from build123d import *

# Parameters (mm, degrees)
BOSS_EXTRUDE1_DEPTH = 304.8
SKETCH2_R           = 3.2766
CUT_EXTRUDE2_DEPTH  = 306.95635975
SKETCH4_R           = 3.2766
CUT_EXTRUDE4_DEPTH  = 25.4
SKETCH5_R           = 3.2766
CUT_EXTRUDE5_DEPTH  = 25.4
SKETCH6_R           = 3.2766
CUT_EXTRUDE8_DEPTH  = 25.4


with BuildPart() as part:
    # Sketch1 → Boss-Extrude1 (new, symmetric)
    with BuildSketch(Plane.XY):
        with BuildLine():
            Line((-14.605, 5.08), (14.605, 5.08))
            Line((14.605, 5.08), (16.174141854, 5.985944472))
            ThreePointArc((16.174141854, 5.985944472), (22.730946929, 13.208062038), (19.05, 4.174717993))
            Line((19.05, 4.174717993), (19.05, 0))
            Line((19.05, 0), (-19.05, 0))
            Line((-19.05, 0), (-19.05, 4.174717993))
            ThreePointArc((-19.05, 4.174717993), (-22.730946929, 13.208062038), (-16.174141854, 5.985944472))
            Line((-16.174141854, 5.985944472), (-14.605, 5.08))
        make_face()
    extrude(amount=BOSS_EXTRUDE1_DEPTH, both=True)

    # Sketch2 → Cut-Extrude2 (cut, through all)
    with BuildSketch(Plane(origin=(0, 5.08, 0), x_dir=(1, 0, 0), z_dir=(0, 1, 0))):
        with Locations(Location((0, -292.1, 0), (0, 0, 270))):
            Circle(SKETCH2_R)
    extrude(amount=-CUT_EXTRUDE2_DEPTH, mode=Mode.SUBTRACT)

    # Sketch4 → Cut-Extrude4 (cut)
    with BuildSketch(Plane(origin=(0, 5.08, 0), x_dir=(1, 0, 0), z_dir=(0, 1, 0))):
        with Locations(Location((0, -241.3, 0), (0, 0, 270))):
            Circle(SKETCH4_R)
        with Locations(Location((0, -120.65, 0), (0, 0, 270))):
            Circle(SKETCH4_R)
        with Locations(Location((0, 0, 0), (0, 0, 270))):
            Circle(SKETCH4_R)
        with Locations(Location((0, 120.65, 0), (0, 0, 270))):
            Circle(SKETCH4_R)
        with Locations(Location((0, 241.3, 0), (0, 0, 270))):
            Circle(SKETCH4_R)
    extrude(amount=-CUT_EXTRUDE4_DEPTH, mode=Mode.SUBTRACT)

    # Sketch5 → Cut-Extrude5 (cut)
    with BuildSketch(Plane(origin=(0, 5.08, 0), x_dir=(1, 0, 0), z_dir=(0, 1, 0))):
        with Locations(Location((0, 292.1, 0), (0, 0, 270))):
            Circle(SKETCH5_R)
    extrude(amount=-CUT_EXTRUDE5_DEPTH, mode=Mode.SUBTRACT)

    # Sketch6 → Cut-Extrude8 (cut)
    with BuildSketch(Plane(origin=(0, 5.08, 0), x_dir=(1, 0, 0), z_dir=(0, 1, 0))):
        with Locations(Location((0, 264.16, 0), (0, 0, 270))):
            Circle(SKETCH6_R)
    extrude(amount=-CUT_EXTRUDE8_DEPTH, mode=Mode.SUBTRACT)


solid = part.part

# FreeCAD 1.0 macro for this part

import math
import FreeCAD as App
import Part
import Sketcher
from FreeCAD import Vector
Q = App.Units.Quantity

doc = App.newDocument("Part")
body = doc.addObject("PartDesign::Body", "Body")

sketch1 = body.newObject("Sketcher::SketchObject", "Sketch")
sketch1.AttachmentSupport = (doc.getObject("XY_Plane"), [""])
sketch1.MapMode = "FlatFace"
sketch1.addGeometry(Part.LineSegment(Vector(14.6, 5.1, 0), Vector(-14.6, 5.1, 0)), False)
sketch1.addGeometry(Part.LineSegment(Vector(-14.6, 5.1, 0), Vector(-16.2, 6, 0)), False)
sketch1.addGeometry(Part.ArcOfCircle(Part.Circle(Vector(-20.1, 9, 0), Vector(0, 0, 1), 5), math.radians(-38), math.radians(282)), False)
sketch1.addGeometry(Part.LineSegment(Vector(-19.1, 4.2, 0), Vector(-19.1, 0, 0)), False)
sketch1.addGeometry(Part.LineSegment(Vector(-19.1, 0, 0), Vector(19.1, 0, 0)), False)
sketch1.addGeometry(Part.LineSegment(Vector(19.1, 0, 0), Vector(19.1, 4.2, 0)), False)
sketch1.addGeometry(Part.ArcOfCircle(Part.Circle(Vector(20.1, 9, 0), Vector(0, 0, 1), 5), math.radians(-102), math.radians(218)), False)
sketch1.addGeometry(Part.LineSegment(Vector(16.2, 6, 0), Vector(14.6, 5.1, 0)), False)
sketch1.addConstraint(Sketcher.Constraint("Coincident", 0, 2, 1, 1))
sketch1.addConstraint(Sketcher.Constraint("Coincident", 1, 2, 2, 1))
sketch1.addConstraint(Sketcher.Constraint("Coincident", 2, 2, 3, 1))
sketch1.addConstraint(Sketcher.Constraint("Coincident", 3, 2, 4, 1))
sketch1.addConstraint(Sketcher.Constraint("Coincident", 4, 2, 5, 1))
sketch1.addConstraint(Sketcher.Constraint("Coincident", 5, 2, 6, 1))
sketch1.addConstraint(Sketcher.Constraint("Coincident", 6, 2, 7, 1))
sketch1.addConstraint(Sketcher.Constraint("Coincident", 7, 2, 0, 1))
sketch1.addConstraint(Sketcher.Constraint("Horizontal", 0))
sketch1.addConstraint(Sketcher.Constraint("Vertical", 3))
sketch1.addConstraint(Sketcher.Constraint("Horizontal", 4))
sketch1.addConstraint(Sketcher.Constraint("Vertical", 5))
sketch1.addConstraint(Sketcher.Constraint("Equal", 2, 6))
sketch1.addConstraint(Sketcher.Constraint("Symmetric", 3, 2, 4, 2, -1, 1))
sketch1.addConstraint(Sketcher.Constraint("Symmetric", 2, 3, 6, 3, -2))
sketch1.addConstraint(Sketcher.Constraint("Horizontal", 1, 2, 6, 2))
sketch1.addConstraint(Sketcher.Constraint("Equal", 1, 7))
sketch1.addConstraint(Sketcher.Constraint("DistanceX", 4, 1, 4, 2, Q("1.5 in")))
sketch1.addConstraint(Sketcher.Constraint("Angle", 1, Q("150 deg")))
sketch1.addConstraint(Sketcher.Constraint("Radius", 2, Q("0.195 in")))
sketch1.addConstraint(Sketcher.Constraint("DistanceX", 0, 2, 0, 1, Q("1.15 in")))
sketch1.addConstraint(Sketcher.Constraint("DistanceY", -1, 1, 0, 2, Q("0.2 in")))
sketch1.addConstraint(Sketcher.Constraint("DistanceX", 2, 3, -1, 1, Q("0.791 in")))
sketch1.addConstraint(Sketcher.Constraint("DistanceY", -1, 1, 2, 3, Q("0.355 in")))
pad1 = body.newObject("PartDesign::Pad", "Pad")
pad1.Profile = sketch1
pad1.Length = Q("24 in")
pad1.Midplane = True

sketch2 = body.newObject("Sketcher::SketchObject", "Sketch001")
sketch2.AttachmentSupport = (doc.getObject("XZ_Plane"), [""])
sketch2.MapMode = "FlatFace"
sketch2.AttachmentOffset = App.Placement(Vector(0, 0, -0.2 * 25.4), App.Rotation())
sketch2.addGeometry(Part.Circle(Vector(0, 292.1, 0), Vector(0, 0, 1), 3.3), False)
sketch2.addConstraint(Sketcher.Constraint("PointOnObject", 0, 3, -2))
sketch2.addConstraint(Sketcher.Constraint("Diameter", 0, Q("0.258 in")))
sketch2.addConstraint(Sketcher.Constraint("DistanceY", -1, 1, 0, 3, Q("11.5 in")))
pocket1 = body.newObject("PartDesign::Pocket", "Pocket")
pocket1.Profile = sketch2
pocket1.Type = "ThroughAll"
pocket1.Reversed = True

sketch3 = body.newObject("Sketcher::SketchObject", "Sketch002")
sketch3.AttachmentSupport = (doc.getObject("XZ_Plane"), [""])
sketch3.MapMode = "FlatFace"
sketch3.AttachmentOffset = App.Placement(Vector(0, 0, -0.2 * 25.4), App.Rotation())
sketch3.addGeometry(Part.Circle(Vector(0, 241.3, 0), Vector(0, 0, 1), 3.3), False)
sketch3.addGeometry(Part.Circle(Vector(0, 120.7, 0), Vector(0, 0, 1), 3.3), False)
sketch3.addGeometry(Part.Circle(Vector(0, 0, 0), Vector(0, 0, 1), 3.3), False)
sketch3.addGeometry(Part.Circle(Vector(0, -120.7, 0), Vector(0, 0, 1), 3.3), False)
sketch3.addGeometry(Part.Circle(Vector(0, -241.3, 0), Vector(0, 0, 1), 3.3), False)
sketch3.addConstraint(Sketcher.Constraint("Coincident", 2, 3, -1, 1))
sketch3.addConstraint(Sketcher.Constraint("Equal", 0, 1))
sketch3.addConstraint(Sketcher.Constraint("Equal", 1, 2))
sketch3.addConstraint(Sketcher.Constraint("Equal", 2, 3))
sketch3.addConstraint(Sketcher.Constraint("Equal", 3, 4))
sketch3.addConstraint(Sketcher.Constraint("Symmetric", 1, 3, 3, 3, -1, 1))
sketch3.addConstraint(Sketcher.Constraint("Symmetric", 0, 3, 4, 3, -1, 1))
sketch3.addConstraint(Sketcher.Constraint("PointOnObject", 0, 3, -2))
sketch3.addConstraint(Sketcher.Constraint("PointOnObject", 1, 3, -2))
sketch3.addConstraint(Sketcher.Constraint("Diameter", 0, Q("0.258 in")))
sketch3.addConstraint(Sketcher.Constraint("DistanceY", 4, 3, 0, 3, Q("19 in")))
sketch3.addConstraint(Sketcher.Constraint("DistanceY", 3, 3, 1, 3, Q("9.5 in")))
pocket2 = body.newObject("PartDesign::Pocket", "Pocket001")
pocket2.Profile = sketch3
pocket2.Length = Q("1 in")
pocket2.Reversed = True

sketch4 = body.newObject("Sketcher::SketchObject", "Sketch003")
sketch4.AttachmentSupport = (doc.getObject("XZ_Plane"), [""])
sketch4.MapMode = "FlatFace"
sketch4.AttachmentOffset = App.Placement(Vector(0, 0, -0.2 * 25.4), App.Rotation())
sketch4.addGeometry(Part.Circle(Vector(0, -292.1, 0), Vector(0, 0, 1), 3.3), False)
sketch4.addConstraint(Sketcher.Constraint("PointOnObject", 0, 3, -2))
sketch4.addConstraint(Sketcher.Constraint("Diameter", 0, Q("0.258 in")))
sketch4.addConstraint(Sketcher.Constraint("DistanceY", 0, 3, -1, 1, Q("11.5 in")))
pocket3 = body.newObject("PartDesign::Pocket", "Pocket002")
pocket3.Profile = sketch4
pocket3.Length = Q("1 in")
pocket3.Reversed = True

sketch5 = body.newObject("Sketcher::SketchObject", "Sketch004")
sketch5.AttachmentSupport = (doc.getObject("XZ_Plane"), [""])
sketch5.MapMode = "FlatFace"
sketch5.AttachmentOffset = App.Placement(Vector(0, 0, -0.2 * 25.4), App.Rotation())
sketch5.addGeometry(Part.Circle(Vector(0, -264.2, 0), Vector(0, 0, 1), 3.3), False)
sketch5.addConstraint(Sketcher.Constraint("PointOnObject", 0, 3, -2))
sketch5.addConstraint(Sketcher.Constraint("Diameter", 0, Q("0.258 in")))
sketch5.addConstraint(Sketcher.Constraint("DistanceY", 0, 3, -1, 1, Q("10.4 in")))
pocket4 = body.newObject("PartDesign::Pocket", "Pocket003")
pocket4.Profile = sketch5
pocket4.Length = Q("1 in")
pocket4.Reversed = True

doc.recompute()
